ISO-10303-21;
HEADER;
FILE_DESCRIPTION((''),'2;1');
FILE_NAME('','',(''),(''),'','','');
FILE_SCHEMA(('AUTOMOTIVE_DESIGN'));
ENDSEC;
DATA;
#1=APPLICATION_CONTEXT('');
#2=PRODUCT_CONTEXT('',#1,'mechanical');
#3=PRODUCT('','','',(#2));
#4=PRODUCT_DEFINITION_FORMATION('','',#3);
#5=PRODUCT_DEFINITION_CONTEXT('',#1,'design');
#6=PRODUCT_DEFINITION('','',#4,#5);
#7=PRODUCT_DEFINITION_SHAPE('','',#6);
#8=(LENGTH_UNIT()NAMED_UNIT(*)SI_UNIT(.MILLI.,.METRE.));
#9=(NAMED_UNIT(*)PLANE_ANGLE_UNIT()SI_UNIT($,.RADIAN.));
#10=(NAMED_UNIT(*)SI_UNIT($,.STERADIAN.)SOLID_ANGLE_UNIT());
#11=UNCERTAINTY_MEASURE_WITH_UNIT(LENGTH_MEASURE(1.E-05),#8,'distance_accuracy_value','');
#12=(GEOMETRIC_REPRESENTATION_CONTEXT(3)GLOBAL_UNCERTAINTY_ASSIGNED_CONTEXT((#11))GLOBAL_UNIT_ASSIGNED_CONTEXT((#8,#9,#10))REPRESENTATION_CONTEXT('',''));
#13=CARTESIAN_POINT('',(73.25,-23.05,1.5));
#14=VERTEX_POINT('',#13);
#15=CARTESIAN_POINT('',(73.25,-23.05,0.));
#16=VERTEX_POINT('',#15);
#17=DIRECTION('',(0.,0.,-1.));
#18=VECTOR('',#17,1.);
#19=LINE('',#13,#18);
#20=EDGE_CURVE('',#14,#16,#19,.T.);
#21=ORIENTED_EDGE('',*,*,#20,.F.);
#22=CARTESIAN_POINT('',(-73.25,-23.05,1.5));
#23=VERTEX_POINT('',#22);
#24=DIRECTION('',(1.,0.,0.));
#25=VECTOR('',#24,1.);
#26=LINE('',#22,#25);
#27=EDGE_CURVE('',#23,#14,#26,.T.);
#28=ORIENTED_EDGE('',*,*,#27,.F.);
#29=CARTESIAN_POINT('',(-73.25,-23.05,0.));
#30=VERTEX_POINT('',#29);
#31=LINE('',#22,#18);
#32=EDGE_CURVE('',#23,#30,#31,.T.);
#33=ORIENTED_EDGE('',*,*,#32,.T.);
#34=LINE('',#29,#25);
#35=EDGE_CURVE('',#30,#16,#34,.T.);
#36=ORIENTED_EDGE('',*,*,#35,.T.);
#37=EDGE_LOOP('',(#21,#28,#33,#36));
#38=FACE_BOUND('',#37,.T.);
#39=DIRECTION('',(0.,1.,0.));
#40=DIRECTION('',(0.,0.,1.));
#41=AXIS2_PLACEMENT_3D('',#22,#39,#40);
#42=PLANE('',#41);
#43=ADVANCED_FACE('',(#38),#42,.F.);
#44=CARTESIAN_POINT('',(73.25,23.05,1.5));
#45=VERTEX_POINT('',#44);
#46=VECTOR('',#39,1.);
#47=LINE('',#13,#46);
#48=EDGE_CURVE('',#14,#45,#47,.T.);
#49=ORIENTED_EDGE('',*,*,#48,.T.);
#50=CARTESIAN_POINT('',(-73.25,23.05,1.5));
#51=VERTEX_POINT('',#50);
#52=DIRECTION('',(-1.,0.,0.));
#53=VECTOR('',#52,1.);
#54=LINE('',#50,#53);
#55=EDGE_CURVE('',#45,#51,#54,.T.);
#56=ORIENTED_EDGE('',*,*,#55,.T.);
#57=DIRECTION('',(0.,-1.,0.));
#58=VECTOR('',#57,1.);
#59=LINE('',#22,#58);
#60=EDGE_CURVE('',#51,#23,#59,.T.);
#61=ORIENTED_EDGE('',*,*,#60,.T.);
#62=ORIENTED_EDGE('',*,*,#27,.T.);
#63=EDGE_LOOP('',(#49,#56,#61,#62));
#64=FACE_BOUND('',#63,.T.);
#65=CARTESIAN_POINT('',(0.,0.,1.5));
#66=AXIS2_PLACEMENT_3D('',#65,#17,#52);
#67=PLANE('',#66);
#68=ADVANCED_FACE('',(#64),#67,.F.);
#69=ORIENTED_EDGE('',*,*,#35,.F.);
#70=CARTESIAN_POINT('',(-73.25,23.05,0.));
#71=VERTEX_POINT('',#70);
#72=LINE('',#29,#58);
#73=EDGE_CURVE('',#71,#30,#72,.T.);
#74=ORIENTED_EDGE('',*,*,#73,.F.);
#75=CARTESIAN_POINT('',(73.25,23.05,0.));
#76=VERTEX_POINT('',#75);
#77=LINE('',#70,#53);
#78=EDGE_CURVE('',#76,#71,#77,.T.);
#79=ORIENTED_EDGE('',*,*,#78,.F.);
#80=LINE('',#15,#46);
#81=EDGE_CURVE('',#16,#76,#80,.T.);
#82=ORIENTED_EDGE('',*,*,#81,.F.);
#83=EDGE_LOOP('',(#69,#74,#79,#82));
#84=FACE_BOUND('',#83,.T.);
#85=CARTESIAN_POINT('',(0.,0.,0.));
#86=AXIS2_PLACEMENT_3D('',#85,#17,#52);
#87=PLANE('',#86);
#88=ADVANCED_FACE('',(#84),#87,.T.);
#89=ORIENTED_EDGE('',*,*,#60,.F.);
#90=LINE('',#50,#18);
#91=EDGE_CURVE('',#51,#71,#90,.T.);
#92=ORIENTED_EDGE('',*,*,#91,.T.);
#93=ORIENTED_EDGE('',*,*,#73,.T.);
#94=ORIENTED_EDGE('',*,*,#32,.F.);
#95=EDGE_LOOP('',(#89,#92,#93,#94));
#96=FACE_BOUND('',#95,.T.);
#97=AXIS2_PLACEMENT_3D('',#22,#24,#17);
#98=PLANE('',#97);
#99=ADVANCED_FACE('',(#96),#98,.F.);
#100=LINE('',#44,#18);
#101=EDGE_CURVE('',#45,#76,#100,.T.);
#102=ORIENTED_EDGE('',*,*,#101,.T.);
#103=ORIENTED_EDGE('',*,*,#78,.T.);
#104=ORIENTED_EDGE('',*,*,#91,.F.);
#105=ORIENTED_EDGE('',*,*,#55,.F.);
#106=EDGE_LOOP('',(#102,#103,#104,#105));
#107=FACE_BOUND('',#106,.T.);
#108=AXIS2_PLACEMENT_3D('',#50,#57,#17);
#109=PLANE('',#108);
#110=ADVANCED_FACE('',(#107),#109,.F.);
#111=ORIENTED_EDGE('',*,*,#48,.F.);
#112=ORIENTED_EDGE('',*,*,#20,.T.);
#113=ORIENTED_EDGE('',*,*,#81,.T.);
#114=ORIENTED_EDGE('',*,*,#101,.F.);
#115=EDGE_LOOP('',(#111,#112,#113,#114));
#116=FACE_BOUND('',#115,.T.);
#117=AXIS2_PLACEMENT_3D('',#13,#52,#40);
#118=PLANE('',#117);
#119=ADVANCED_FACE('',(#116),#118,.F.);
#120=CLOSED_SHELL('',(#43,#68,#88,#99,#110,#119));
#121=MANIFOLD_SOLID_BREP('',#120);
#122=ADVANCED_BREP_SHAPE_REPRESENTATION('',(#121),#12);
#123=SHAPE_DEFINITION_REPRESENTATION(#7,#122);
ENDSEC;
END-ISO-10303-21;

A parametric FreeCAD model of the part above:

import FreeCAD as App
import Part
import Sketcher


def add_polygon(sketch, points):
    """Adds a closed chain of lines whose ends are joined by coincident constraints."""
    first, n = sketch.GeometryCount, len(points)
    for a, b in zip(points, points[1:] + points[:1]):
        sketch.addGeometry(Part.LineSegment(App.Vector(*a, 0), App.Vector(*b, 0)), False)
    for i in range(n):
        sketch.addConstraint(Sketcher.Constraint("Coincident", first + i, 2, first + (i + 1) % n, 1))

doc = App.newDocument("Part")
params = doc.addObject("Spreadsheet::Sheet", "Params")
for row, (alias, value) in enumerate([
    ("sketch1_width", "146.5 mm"),
    ("sketch1_height", "46.1 mm"),
    ("pad1_length", "1.5 mm"),
], start=1):
    params.set(f"A{row}", alias)
    params.set(f"B{row}", "=" + value)
    params.setAlias(f"B{row}", alias)

body = doc.addObject("PartDesign::Body", "Body")

sketch1 = doc.addObject("Sketcher::SketchObject", "Sketch")
body.addObject(sketch1)
sketch1.AttachmentSupport = (doc.XY_Plane, [""])
sketch1.MapMode = "FlatFace"
add_polygon(sketch1, [(-73, 23), (-73, -23), (73, -23), (73, 23)])
sketch1.addConstraint([
    Sketcher.Constraint("Vertical", 0),
    Sketcher.Constraint("Horizontal", 1),
    Sketcher.Constraint("Vertical", 2),
    Sketcher.Constraint("Horizontal", 3),
    Sketcher.Constraint("Symmetric", 0, 2, 2, 2, -1, 1),
    Sketcher.Constraint("DistanceX", 1, 1, 1, 2, 146.5),
    Sketcher.Constraint("DistanceY", 0, 2, 0, 1, 46.1),
])
sketch1.setExpression("Constraints[9]", "Params.sketch1_width")
sketch1.setExpression("Constraints[10]", "Params.sketch1_height")
pad1 = doc.addObject("PartDesign::Pad", "Pad")
body.addObject(pad1)
pad1.Profile = sketch1
pad1.setExpression("Length", "Params.pad1_length")

doc.recompute()
